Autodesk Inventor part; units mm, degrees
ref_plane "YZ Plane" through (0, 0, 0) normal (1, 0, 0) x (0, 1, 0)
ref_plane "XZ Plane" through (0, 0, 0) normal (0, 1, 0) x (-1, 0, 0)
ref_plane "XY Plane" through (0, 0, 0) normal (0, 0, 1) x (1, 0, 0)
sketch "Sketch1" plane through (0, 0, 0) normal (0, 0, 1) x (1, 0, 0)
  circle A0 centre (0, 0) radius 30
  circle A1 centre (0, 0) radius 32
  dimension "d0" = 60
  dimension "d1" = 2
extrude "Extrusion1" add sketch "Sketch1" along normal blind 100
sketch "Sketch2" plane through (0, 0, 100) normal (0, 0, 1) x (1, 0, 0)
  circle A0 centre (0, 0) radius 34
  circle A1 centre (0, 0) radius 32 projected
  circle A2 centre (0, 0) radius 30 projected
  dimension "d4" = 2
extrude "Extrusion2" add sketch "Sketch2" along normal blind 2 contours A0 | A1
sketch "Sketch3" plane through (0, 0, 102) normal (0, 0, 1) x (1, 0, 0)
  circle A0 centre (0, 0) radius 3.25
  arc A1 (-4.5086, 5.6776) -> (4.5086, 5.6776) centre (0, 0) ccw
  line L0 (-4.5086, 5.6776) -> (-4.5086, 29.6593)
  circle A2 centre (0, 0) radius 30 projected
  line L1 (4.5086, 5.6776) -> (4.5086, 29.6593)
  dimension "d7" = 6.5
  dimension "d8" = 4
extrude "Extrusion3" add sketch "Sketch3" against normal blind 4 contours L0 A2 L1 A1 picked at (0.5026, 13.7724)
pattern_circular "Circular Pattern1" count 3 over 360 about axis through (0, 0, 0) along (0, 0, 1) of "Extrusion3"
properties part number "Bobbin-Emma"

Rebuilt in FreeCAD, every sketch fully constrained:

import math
import FreeCAD as App
import Part
import Sketcher
Q = App.Units.Quantity

doc = App.newDocument("Part")
body = doc.addObject("PartDesign::Body", "Body")

# Sketch on XY plane
sketch1 = doc.addObject("Sketcher::SketchObject", "Sketch")
body.addObject(sketch1)
sketch1.AttachmentSupport = (doc.XY_Plane, [""])
sketch1.MapMode = "FlatFace"
sketch1.addGeometry([
    Part.Circle(App.Vector(0, 0, 0), App.Vector(0, 0, 1), 32),
    Part.Circle(App.Vector(0, 0, 0), App.Vector(0, 0, 1), 30),
], False)
sketch1.addConstraint([
    Sketcher.Constraint("Coincident", 0, 3, -1, 1),
    Sketcher.Constraint("Coincident", 1, 3, -1, 1),
    Sketcher.Constraint("Diameter", 1, Q("60 mm")),
    Sketcher.Constraint("Diameter", 0, Q("64 mm")),
])
pad1 = doc.addObject("PartDesign::Pad", "Pad")
body.addObject(pad1)
pad1.Profile = sketch1
pad1.Length = 100

# Sketch on XY plane
sketch2 = doc.addObject("Sketcher::SketchObject", "Sketch001")
body.addObject(sketch2)
sketch2.AttachmentSupport = (doc.XY_Plane, [""])
sketch2.MapMode = "FlatFace"
sketch2.AttachmentOffset = App.Placement(App.Vector(0, 0, 100), App.Rotation())
sketch2.addGeometry([
    Part.Circle(App.Vector(0, 0, 0), App.Vector(0, 0, 1), 34),
    Part.Circle(App.Vector(0, 0, 0), App.Vector(0, 0, 1), 30),
], False)
sketch2.addConstraint([
    Sketcher.Constraint("Coincident", 0, 3, -1, 1),
    Sketcher.Constraint("Coincident", 1, 3, -1, 1),
    Sketcher.Constraint("Diameter", 0, Q("68 mm")),
    Sketcher.Constraint("Diameter", 1, Q("60 mm")),
])
pad2 = doc.addObject("PartDesign::Pad", "Pad001")
body.addObject(pad2)
pad2.Profile = sketch2
pad2.Length = 2

# Sketch on XY plane
sketch3 = doc.addObject("Sketcher::SketchObject", "Sketch002")
body.addObject(sketch3)
sketch3.AttachmentSupport = (doc.XY_Plane, [""])
sketch3.MapMode = "FlatFace"
sketch3.AttachmentOffset = App.Placement(App.Vector(0, 0, 102), App.Rotation())
sketch3.addGeometry([
    Part.LineSegment(App.Vector(-4.5, 29.7, 0), App.Vector(-4.5, 5.7, 0)),  # 0
    Part.ArcOfCircle(Part.Circle(App.Vector(0, 0, 0), App.Vector(0, 0, 1), 7.3), math.radians(128), math.radians(412)),  # 1
    Part.LineSegment(App.Vector(4.5, 5.7, 0), App.Vector(4.5, 29.7, 0)),  # 2
    Part.ArcOfCircle(Part.Circle(App.Vector(0, 0, 0), App.Vector(0, 0, 1), 30), math.radians(81.36), math.radians(98.64)),  # 3
    Part.Circle(App.Vector(0, 0, 0), App.Vector(0, 0, 1), 3.2),  # 4
], False)
sketch3.addConstraint([
    Sketcher.Constraint("Coincident", 0, 2, 1, 1),
    Sketcher.Constraint("Coincident", 1, 2, 2, 1),
    Sketcher.Constraint("Coincident", 2, 2, 3, 1),
    Sketcher.Constraint("Coincident", 3, 2, 0, 1),
    Sketcher.Constraint("Vertical", 0),
    Sketcher.Constraint("Vertical", 2),
    Sketcher.Constraint("Coincident", 1, 3, -1, 1),
    Sketcher.Constraint("Coincident", 3, 3, -1, 1),
    Sketcher.Constraint("Coincident", 4, 3, -1, 1),
    Sketcher.Constraint("Horizontal", 0, 2, 1, 2),
    Sketcher.Constraint("Diameter", 4, Q("6.5 mm")),
    Sketcher.Constraint("Radius", 3, Q("30 mm")),
    Sketcher.Constraint("Radius", 1, Q("7.25 mm")),
    Sketcher.Constraint("DistanceY", 0, 2, 0, 1, Q("23.9817 mm")),
])
pad3 = doc.addObject("PartDesign::Pad", "Pad002")
body.addObject(pad3)
pad3.Profile = sketch3
pad3.Length = 4
pad3.Reversed = True
doc.recompute()

polarpattern = doc.addObject("PartDesign::PolarPattern", "PolarPattern")
body.addObject(polarpattern)
polarpattern.Originals = [pad3]
polarpattern.Axis = (doc.Z_Axis, [""])
polarpattern.Angle = 360
polarpattern.Occurrences = 3
body.Tip = polarpattern

doc.recompute()
